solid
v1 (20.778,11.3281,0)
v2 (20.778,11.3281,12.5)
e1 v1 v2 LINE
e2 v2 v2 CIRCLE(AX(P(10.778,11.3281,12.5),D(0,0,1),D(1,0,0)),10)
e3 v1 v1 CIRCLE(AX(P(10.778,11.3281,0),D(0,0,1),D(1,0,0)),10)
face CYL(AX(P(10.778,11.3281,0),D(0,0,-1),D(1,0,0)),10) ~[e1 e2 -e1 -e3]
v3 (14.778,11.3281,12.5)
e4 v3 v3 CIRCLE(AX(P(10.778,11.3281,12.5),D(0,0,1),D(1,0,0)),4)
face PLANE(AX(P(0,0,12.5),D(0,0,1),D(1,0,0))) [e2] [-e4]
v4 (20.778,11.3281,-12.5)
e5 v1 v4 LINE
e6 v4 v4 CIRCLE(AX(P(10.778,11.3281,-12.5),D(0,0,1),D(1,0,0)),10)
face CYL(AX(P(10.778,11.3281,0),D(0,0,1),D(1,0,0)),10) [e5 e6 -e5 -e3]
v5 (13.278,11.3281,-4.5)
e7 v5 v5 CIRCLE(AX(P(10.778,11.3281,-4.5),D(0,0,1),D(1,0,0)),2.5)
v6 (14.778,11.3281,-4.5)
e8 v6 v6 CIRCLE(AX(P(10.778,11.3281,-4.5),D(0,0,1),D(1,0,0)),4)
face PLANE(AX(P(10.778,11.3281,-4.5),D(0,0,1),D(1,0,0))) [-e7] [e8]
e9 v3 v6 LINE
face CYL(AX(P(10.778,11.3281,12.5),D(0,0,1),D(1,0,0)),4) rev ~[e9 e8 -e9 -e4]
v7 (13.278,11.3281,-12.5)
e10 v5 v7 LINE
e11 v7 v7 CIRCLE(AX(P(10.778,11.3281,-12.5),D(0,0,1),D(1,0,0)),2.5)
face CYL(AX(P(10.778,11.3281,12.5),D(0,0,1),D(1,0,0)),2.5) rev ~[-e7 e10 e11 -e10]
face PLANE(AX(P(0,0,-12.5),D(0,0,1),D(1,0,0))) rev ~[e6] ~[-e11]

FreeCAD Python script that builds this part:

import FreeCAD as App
import Part
import Sketcher

V = App.Vector

doc = App.newDocument("Part")
body = doc.addObject("PartDesign::Body", "Body")

sketch1 = body.newObject("Sketcher::SketchObject", "Sketch")
sketch1.AttachmentSupport = (doc.getObject("XY_Plane"), [""])
sketch1.MapMode = "FlatFace"
sketch1.addGeometry(Part.Circle(V(11, 11, 0), V(0, 0, 1), 10), False)
sketch1.addConstraint([
    Sketcher.Constraint("Diameter", 0, 20.0),
    Sketcher.Constraint("DistanceX", -1, 1, 0, 3, 10.778),
    Sketcher.Constraint("DistanceY", -1, 1, 0, 3, 11.328),
])
pad1 = body.newObject("PartDesign::Pad", "Pad")
pad1.Profile = sketch1
pad1.Length = 25
pad1.Midplane = True

sketch2 = body.newObject("Sketcher::SketchObject", "Sketch001")
sketch2.AttachmentSupport = (doc.getObject("XY_Plane"), [""])
sketch2.MapMode = "FlatFace"
sketch2.AttachmentOffset = App.Placement(V(0, 0, 12.5), App.Rotation())
sketch2.addGeometry(Part.Circle(V(10.8, 11.3, 0), V(0, 0, 1), 2.5), False)
sketch2.addConstraint([
    Sketcher.Constraint("Diameter", 0, 5.0),
    Sketcher.Constraint("DistanceX", -1, 1, 0, 3, 10.778),
    Sketcher.Constraint("DistanceY", -1, 1, 0, 3, 11.328),
])
pocket1 = body.newObject("PartDesign::Pocket", "Pocket")
pocket1.Profile = sketch2
pocket1.Type = "ThroughAll"

sketch3 = body.newObject("Sketcher::SketchObject", "Sketch002")
sketch3.AttachmentSupport = (doc.getObject("XY_Plane"), [""])
sketch3.MapMode = "FlatFace"
sketch3.AttachmentOffset = App.Placement(V(0, 0, 12.5), App.Rotation())
sketch3.addGeometry([
    Part.Circle(V(10.8, 11.3, 0), V(0, 0, 1), 4),
    Part.Circle(V(10.8, 11.3, 0), V(0, 0, 1), 2.5),
], False)
sketch3.addConstraint([
    Sketcher.Constraint("Coincident", 1, 3, 0, 3),
    Sketcher.Constraint("Diameter", 0, 8.0),
    Sketcher.Constraint("Diameter", 1, 5.0),
    Sketcher.Constraint("DistanceX", -1, 1, 0, 3, 10.778),
    Sketcher.Constraint("DistanceY", -1, 1, 0, 3, 11.328),
])
pocket2 = body.newObject("PartDesign::Pocket", "Pocket001")
pocket2.Profile = sketch3
pocket2.Length = 17

doc.recompute()
